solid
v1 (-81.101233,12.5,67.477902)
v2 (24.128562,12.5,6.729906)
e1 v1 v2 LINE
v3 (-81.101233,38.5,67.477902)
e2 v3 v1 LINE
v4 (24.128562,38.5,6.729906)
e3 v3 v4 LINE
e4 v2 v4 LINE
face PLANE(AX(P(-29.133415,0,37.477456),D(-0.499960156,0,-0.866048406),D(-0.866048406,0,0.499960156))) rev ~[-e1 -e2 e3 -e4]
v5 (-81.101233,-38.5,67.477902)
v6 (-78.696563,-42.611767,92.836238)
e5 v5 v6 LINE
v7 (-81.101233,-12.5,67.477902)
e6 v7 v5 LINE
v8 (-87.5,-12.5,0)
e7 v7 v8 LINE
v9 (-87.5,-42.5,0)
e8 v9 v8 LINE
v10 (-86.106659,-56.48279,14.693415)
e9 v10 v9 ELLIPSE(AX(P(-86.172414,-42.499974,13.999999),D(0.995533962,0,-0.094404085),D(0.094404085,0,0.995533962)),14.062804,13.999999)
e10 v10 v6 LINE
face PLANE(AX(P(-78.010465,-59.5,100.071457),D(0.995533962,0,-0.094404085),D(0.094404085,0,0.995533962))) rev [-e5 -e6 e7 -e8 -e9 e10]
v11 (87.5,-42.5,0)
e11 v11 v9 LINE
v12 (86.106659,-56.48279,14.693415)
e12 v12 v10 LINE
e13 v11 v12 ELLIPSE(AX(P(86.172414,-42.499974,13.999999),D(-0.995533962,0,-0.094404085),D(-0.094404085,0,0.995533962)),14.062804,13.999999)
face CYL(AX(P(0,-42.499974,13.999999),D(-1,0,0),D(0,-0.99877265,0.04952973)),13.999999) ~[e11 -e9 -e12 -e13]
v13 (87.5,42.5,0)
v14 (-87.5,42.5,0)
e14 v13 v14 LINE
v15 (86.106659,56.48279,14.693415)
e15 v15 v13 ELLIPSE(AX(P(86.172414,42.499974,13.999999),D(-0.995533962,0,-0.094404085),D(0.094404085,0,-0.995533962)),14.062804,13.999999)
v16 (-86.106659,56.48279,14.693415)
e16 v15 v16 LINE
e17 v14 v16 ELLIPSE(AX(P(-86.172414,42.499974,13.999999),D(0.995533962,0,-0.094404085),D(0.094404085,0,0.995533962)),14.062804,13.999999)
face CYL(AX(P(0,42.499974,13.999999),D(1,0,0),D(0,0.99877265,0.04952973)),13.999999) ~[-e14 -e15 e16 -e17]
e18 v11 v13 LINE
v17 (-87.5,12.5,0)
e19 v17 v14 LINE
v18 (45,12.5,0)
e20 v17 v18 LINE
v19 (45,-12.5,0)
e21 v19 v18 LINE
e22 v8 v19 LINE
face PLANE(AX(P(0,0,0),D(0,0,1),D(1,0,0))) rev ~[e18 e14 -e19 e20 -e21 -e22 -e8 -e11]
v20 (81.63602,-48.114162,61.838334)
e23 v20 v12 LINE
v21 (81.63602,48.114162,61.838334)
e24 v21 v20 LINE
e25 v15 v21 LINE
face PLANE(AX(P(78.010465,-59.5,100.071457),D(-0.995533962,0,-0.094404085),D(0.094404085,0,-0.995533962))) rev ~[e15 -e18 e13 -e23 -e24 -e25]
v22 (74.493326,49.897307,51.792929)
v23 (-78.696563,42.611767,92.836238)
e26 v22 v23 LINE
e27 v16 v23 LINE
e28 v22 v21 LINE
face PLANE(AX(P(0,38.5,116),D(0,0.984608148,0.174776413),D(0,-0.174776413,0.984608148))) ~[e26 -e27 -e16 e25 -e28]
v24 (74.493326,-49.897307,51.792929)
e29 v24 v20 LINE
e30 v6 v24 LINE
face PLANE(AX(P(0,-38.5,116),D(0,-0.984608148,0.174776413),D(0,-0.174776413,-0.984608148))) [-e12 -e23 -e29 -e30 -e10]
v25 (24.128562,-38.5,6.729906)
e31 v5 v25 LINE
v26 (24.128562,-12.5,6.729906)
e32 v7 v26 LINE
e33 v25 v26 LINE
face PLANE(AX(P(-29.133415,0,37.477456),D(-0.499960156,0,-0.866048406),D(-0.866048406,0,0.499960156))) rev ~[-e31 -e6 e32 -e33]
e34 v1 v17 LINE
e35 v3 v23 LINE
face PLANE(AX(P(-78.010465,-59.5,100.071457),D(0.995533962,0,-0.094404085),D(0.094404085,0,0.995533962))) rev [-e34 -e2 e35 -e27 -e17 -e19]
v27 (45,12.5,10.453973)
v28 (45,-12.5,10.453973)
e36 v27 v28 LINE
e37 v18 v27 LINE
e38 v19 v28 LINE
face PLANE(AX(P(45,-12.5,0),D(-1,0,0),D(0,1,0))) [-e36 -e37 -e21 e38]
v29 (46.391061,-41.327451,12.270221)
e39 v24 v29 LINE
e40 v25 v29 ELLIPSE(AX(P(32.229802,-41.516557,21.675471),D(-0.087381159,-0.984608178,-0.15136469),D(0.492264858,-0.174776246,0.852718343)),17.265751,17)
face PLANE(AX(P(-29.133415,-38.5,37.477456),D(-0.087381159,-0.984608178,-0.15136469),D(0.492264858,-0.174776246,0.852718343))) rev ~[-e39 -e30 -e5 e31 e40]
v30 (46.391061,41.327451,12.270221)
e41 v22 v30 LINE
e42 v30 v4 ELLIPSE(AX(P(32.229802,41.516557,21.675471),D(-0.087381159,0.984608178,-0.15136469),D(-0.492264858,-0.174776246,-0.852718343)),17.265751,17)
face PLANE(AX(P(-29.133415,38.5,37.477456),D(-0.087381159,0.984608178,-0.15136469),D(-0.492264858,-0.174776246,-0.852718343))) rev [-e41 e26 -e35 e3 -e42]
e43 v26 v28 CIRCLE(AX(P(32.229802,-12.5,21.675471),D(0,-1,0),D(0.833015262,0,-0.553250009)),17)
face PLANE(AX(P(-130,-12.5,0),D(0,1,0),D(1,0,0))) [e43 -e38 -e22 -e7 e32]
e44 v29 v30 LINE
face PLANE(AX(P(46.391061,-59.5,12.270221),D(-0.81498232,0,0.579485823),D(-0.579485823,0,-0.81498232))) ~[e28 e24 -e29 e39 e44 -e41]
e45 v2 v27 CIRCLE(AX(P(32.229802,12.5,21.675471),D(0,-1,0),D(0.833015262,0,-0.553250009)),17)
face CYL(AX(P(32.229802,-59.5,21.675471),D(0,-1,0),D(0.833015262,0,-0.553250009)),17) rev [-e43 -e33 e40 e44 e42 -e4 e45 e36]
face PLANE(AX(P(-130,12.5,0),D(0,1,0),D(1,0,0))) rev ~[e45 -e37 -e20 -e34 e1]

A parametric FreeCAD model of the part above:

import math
import FreeCAD as App
import Part
import Sketcher
from FreeCAD import Vector

doc = App.newDocument("Part")
body = doc.addObject("PartDesign::Body", "Body")

sketch1 = doc.addObject("Sketcher::SketchObject", "Sketch")
body.addObject(sketch1)
sketch1.AttachmentSupport = (doc.XY_Plane, [""])
sketch1.MapMode = "FlatFace"
sketch1.addGeometry([
    Part.LineSegment(Vector(-130, 12.5, 0), Vector(-130, -12.5, 0)),
    Part.LineSegment(Vector(-130, -12.5, 0), Vector(45, -12.5, 0)),
    Part.LineSegment(Vector(45, -12.5, 0), Vector(45, 12.5, 0)),
    Part.LineSegment(Vector(45, 12.5, 0), Vector(-130, 12.5, 0)),
], False)
sketch1.addConstraint([
    Sketcher.Constraint("Coincident", 0, 2, 1, 1),
    Sketcher.Constraint("Coincident", 1, 2, 2, 1),
    Sketcher.Constraint("Coincident", 2, 2, 3, 1),
    Sketcher.Constraint("Coincident", 3, 2, 0, 1),
    Sketcher.Constraint("Vertical", 0),
    Sketcher.Constraint("Horizontal", 1),
    Sketcher.Constraint("Vertical", 2),
    Sketcher.Constraint("Horizontal", 3),
    Sketcher.Constraint("DistanceX", 1, 1, 1, 2, 175.0),
    Sketcher.Constraint("DistanceY", 0, 2, 0, 1, 25.0),
    Sketcher.Constraint("DistanceX", 0, 2, -1, 1, 130.0),
    Sketcher.Constraint("DistanceY", 0, 2, -1, 1, 12.5),
])
pad1 = doc.addObject("PartDesign::Pad", "Pad")
body.addObject(pad1)
pad1.Profile = sketch1
pad1.Length = 120
body2 = doc.addObject("PartDesign::Body", "Body001")

sketch2 = doc.addObject("Sketcher::SketchObject", "Sketch001")
body2.addObject(sketch2)
sketch2.AttachmentSupport = (doc.getObject("XY_Plane001"), [""])
sketch2.MapMode = "FlatFace"
sketch2.addGeometry([
    Part.LineSegment(Vector(-87.5, 59.5, 0), Vector(-87.5, -59.5, 0)),
    Part.LineSegment(Vector(-87.5, -59.5, 0), Vector(87.5, -59.5, 0)),
    Part.LineSegment(Vector(87.5, -59.5, 0), Vector(87.5, 59.5, 0)),
    Part.LineSegment(Vector(87.5, 59.5, 0), Vector(-87.5, 59.5, 0)),
], False)
sketch2.addConstraint([
    Sketcher.Constraint("Coincident", 0, 2, 1, 1),
    Sketcher.Constraint("Coincident", 1, 2, 2, 1),
    Sketcher.Constraint("Coincident", 2, 2, 3, 1),
    Sketcher.Constraint("Coincident", 3, 2, 0, 1),
    Sketcher.Constraint("Vertical", 0),
    Sketcher.Constraint("Horizontal", 1),
    Sketcher.Constraint("Vertical", 2),
    Sketcher.Constraint("Horizontal", 3),
    Sketcher.Constraint("Symmetric", 0, 2, 2, 2, -1, 1),
    Sketcher.Constraint("DistanceX", 1, 1, 1, 2, 175.0),
    Sketcher.Constraint("DistanceY", 0, 2, 0, 1, 119.0),
])
pad2 = doc.addObject("PartDesign::Pad", "Pad001")
body2.addObject(pad2)
pad2.Profile = sketch2
pad2.Length = 116

sketch3 = doc.addObject("Sketcher::SketchObject", "Sketch002")
body2.addObject(sketch3)
sketch3.AttachmentSupport = (doc.getObject("XZ_Plane001"), [""])
sketch3.MapMode = "FlatFace"
sketch3.AttachmentOffset = App.Placement(Vector(0, 0, 59.5), App.Rotation())
sketch3.addGeometry([
    Part.ArcOfCircle(Part.Circle(Vector(61.043879, 99.006121, 0), Vector(0, 0, 1), 17), math.radians(3.5929), math.radians(88.462533)),
    Part.LineSegment(Vector(78.010465, 100.071457, 0), Vector(87.5, 0, 0)),
    Part.LineSegment(Vector(87.5, 0, 0), Vector(87.5, 116, 0)),
    Part.LineSegment(Vector(87.5, 116, 0), Vector(61.5, 116, 0)),
], False)
sketch3.addConstraint([
    Sketcher.Constraint("Coincident", 0, 1, 1, 1),
    Sketcher.Constraint("Coincident", 1, 2, 2, 1),
    Sketcher.Constraint("Coincident", 2, 2, 3, 1),
    Sketcher.Constraint("Coincident", 3, 2, 0, 2),
    Sketcher.Constraint("Vertical", 2),
    Sketcher.Constraint("Horizontal", 3),
    Sketcher.Constraint("PointOnObject", 1, 2, -1),
    Sketcher.Constraint("Radius", 0, 17.0),
    Sketcher.Constraint("DistanceX", 3, 2, 3, 1, 26.0),
    Sketcher.Constraint("DistanceY", 2, 1, 2, 2, 116.0),
    Sketcher.Constraint("DistanceX", -1, 1, 1, 2, 87.5),
    Sketcher.Constraint("DistanceX", -1, 1, 0, 3, 61.043879),
    Sketcher.Constraint("Distance", 1, 100.520385),
])
pocket1 = doc.addObject("PartDesign::Pocket", "Pocket")
body2.addObject(pocket1)
pocket1.Profile = sketch3
pocket1.Length = 119
doc.recompute()

mirrored = doc.addObject("PartDesign::Mirrored", "Mirrored")
body2.addObject(mirrored)
mirrored.Originals = [pocket1]
mirrored.MirrorPlane = (doc.getObject("YZ_Plane001"), [""])
body2.Tip = mirrored

sketch4 = doc.addObject("Sketcher::SketchObject", "Sketch003")
body2.addObject(sketch4)
sketch4.AttachmentSupport = (doc.getObject("YZ_Plane001"), [""])
sketch4.MapMode = "FlatFace"
sketch4.addGeometry([
    Part.LineSegment(Vector(-38.5, 116, 0), Vector(-59.5, 116, 0)),
    Part.LineSegment(Vector(-59.5, 116, 0), Vector(-59.5, 0, 0)),
    Part.LineSegment(Vector(-59.5, 0, 0), Vector(-42.5, 0, 0)),
    Part.ArcOfCircle(Part.Circle(Vector(-42.499956, 14, 0), Vector(0, 0, 1), 14), math.radians(177.161014), math.radians(269.99982)),
    Part.LineSegment(Vector(-56.482773, 14.693411, 0), Vector(-38.5, 116, 0)),
], False)
sketch4.addConstraint([
    Sketcher.Constraint("Coincident", 0, 2, 1, 1),
    Sketcher.Constraint("Coincident", 1, 2, 2, 1),
    Sketcher.Constraint("Coincident", 2, 2, 3, 2),
    Sketcher.Constraint("Coincident", 3, 1, 4, 1),
    Sketcher.Constraint("Coincident", 4, 2, 0, 1),
    Sketcher.Constraint("Horizontal", 0),
    Sketcher.Constraint("Vertical", 1),
    Sketcher.Constraint("Horizontal", 2),
    Sketcher.Constraint("PointOnObject", 1, 2, -1),
    Sketcher.Constraint("Radius", 3, 14.0),
    Sketcher.Constraint("DistanceX", 0, 2, 0, 1, 21.0),
    Sketcher.Constraint("DistanceX", 2, 1, 2, 2, 17.0),
    Sketcher.Constraint("DistanceY", 1, 2, 1, 1, 116.0),
    Sketcher.Constraint("DistanceX", 0, 2, -1, 1, 59.5),
    Sketcher.Constraint("DistanceY", -1, 1, 3, 1, 14.693411),
    Sketcher.Constraint("Distance", 4, 102.890258),
])
pocket2 = doc.addObject("PartDesign::Pocket", "Pocket001")
body2.addObject(pocket2)
pocket2.Profile = sketch4
pocket2.Type = "ThroughAll"
pocket2.Midplane = True
doc.recompute()

mirrored2 = doc.addObject("PartDesign::Mirrored", "Mirrored001")
body2.addObject(mirrored2)
mirrored2.Originals = [pocket2]
mirrored2.MirrorPlane = (doc.getObject("XZ_Plane001"), [""])
body2.Tip = mirrored2
body3 = doc.addObject("PartDesign::Body", "Body002")
doc.recompute()

body2.Placement = App.Placement(Vector(28.861963, 0, 137.939071), App.Rotation(Vector(0, -1, 0), 150.002636))
boolean = doc.addObject("PartDesign::Boolean", "Boolean")
body3.addObject(boolean)
boolean.Type = "Fuse"
boolean.addObjects([body2])
body4 = doc.addObject("PartDesign::Body", "Body003")

sketch5 = doc.addObject("Sketcher::SketchObject", "Sketch004")
body4.addObject(sketch5)
sketch5.AttachmentSupport = (doc.getObject("XY_Plane003"), [""])
sketch5.MapMode = "FlatFace"
sketch5.addGeometry([
    Part.LineSegment(Vector(-87.5, 59.5, 0), Vector(-87.5, -59.5, 0)),
    Part.LineSegment(Vector(-87.5, -59.5, 0), Vector(87.5, -59.5, 0)),
    Part.LineSegment(Vector(87.5, -59.5, 0), Vector(87.5, 59.5, 0)),
    Part.LineSegment(Vector(87.5, 59.5, 0), Vector(-87.5, 59.5, 0)),
], False)
sketch5.addConstraint([
    Sketcher.Constraint("Coincident", 0, 2, 1, 1),
    Sketcher.Constraint("Coincident", 1, 2, 2, 1),
    Sketcher.Constraint("Coincident", 2, 2, 3, 1),
    Sketcher.Constraint("Coincident", 3, 2, 0, 1),
    Sketcher.Constraint("Vertical", 0),
    Sketcher.Constraint("Horizontal", 1),
    Sketcher.Constraint("Vertical", 2),
    Sketcher.Constraint("Horizontal", 3),
    Sketcher.Constraint("Symmetric", 0, 2, 2, 2, -1, 1),
    Sketcher.Constraint("DistanceX", 1, 1, 1, 2, 175.0),
    Sketcher.Constraint("DistanceY", 0, 2, 0, 1, 119.0),
])
pad3 = doc.addObject("PartDesign::Pad", "Pad002")
body4.addObject(pad3)
pad3.Profile = sketch5
pad3.Length = 116

sketch6 = doc.addObject("Sketcher::SketchObject", "Sketch005")
body4.addObject(sketch6)
sketch6.AttachmentSupport = (doc.getObject("XZ_Plane003"), [""])
sketch6.MapMode = "FlatFace"
sketch6.AttachmentOffset = App.Placement(Vector(0, 0, 59.5), App.Rotation())
sketch6.addGeometry([
    Part.ArcOfCircle(Part.Circle(Vector(61.043879, 99.006121, 0), Vector(0, 0, 1), 17), math.radians(3.5929), math.radians(88.462533)),
    Part.LineSegment(Vector(78.010465, 100.071457, 0), Vector(87.5, 0, 0)),
    Part.LineSegment(Vector(87.5, 0, 0), Vector(87.5, 116, 0)),
    Part.LineSegment(Vector(87.5, 116, 0), Vector(61.5, 116, 0)),
], False)
sketch6.addConstraint([
    Sketcher.Constraint("Coincident", 0, 1, 1, 1),
    Sketcher.Constraint("Coincident", 1, 2, 2, 1),
    Sketcher.Constraint("Coincident", 2, 2, 3, 1),
    Sketcher.Constraint("Coincident", 3, 2, 0, 2),
    Sketcher.Constraint("Vertical", 2),
    Sketcher.Constraint("Horizontal", 3),
    Sketcher.Constraint("PointOnObject", 1, 2, -1),
    Sketcher.Constraint("Radius", 0, 17.0),
    Sketcher.Constraint("DistanceX", 3, 2, 3, 1, 26.0),
    Sketcher.Constraint("DistanceY", 2, 1, 2, 2, 116.0),
    Sketcher.Constraint("DistanceX", -1, 1, 1, 2, 87.5),
    Sketcher.Constraint("DistanceX", -1, 1, 0, 3, 61.043879),
    Sketcher.Constraint("Distance", 1, 100.520385),
])
pocket3 = doc.addObject("PartDesign::Pocket", "Pocket002")
body4.addObject(pocket3)
pocket3.Profile = sketch6
pocket3.Length = 119
doc.recompute()

mirrored3 = doc.addObject("PartDesign::Mirrored", "Mirrored002")
body4.addObject(mirrored3)
mirrored3.Originals = [pocket3]
mirrored3.MirrorPlane = (doc.getObject("YZ_Plane003"), [""])
body4.Tip = mirrored3

sketch7 = doc.addObject("Sketcher::SketchObject", "Sketch006")
body4.addObject(sketch7)
sketch7.AttachmentSupport = (doc.getObject("YZ_Plane003"), [""])
sketch7.MapMode = "FlatFace"
sketch7.addGeometry([
    Part.LineSegment(Vector(-38.5, 116, 0), Vector(-59.5, 116, 0)),
    Part.LineSegment(Vector(-59.5, 116, 0), Vector(-59.5, 0, 0)),
    Part.LineSegment(Vector(-59.5, 0, 0), Vector(-42.5, 0, 0)),
    Part.ArcOfCircle(Part.Circle(Vector(-42.499974, 13.999999, 0), Vector(0, 0, 1), 13.999999), math.radians(177.160994), math.radians(269.999894)),
    Part.LineSegment(Vector(-56.48279, 14.693415, 0), Vector(-38.5, 116, 0)),
], False)
sketch7.addConstraint([
    Sketcher.Constraint("Coincident", 0, 2, 1, 1),
    Sketcher.Constraint("Coincident", 1, 2, 2, 1),
    Sketcher.Constraint("Coincident", 2, 2, 3, 2),
    Sketcher.Constraint("Coincident", 3, 1, 4, 1),
    Sketcher.Constraint("Coincident", 4, 2, 0, 1),
    Sketcher.Constraint("Horizontal", 0),
    Sketcher.Constraint("Vertical", 1),
    Sketcher.Constraint("Horizontal", 2),
    Sketcher.Constraint("PointOnObject", 1, 2, -1),
    Sketcher.Constraint("Radius", 3, 13.999999),
    Sketcher.Constraint("DistanceX", 0, 2, 0, 1, 21.0),
    Sketcher.Constraint("DistanceX", 2, 1, 2, 2, 17.0),
    Sketcher.Constraint("DistanceY", 1, 2, 1, 1, 116.0),
    Sketcher.Constraint("DistanceX", 0, 2, -1, 1, 59.5),
    Sketcher.Constraint("DistanceX", 3, 1, -1, 1, 56.48279),
    Sketcher.Constraint("Distance", 4, 102.890257),
])
pocket4 = doc.addObject("PartDesign::Pocket", "Pocket003")
body4.addObject(pocket4)
pocket4.Profile = sketch7
pocket4.Type = "ThroughAll"
pocket4.Midplane = True
doc.recompute()

mirrored4 = doc.addObject("PartDesign::Mirrored", "Mirrored003")
body4.addObject(mirrored4)
mirrored4.Originals = [pocket4]
mirrored4.MirrorPlane = (doc.getObject("XZ_Plane003"), [""])
body4.Tip = mirrored4
doc.recompute()

boolean2 = doc.addObject("PartDesign::Boolean", "Boolean001")
body4.addObject(boolean2)
boolean2.Type = "Cut"
boolean2.addObjects([body3])
doc.recompute()

boolean3 = doc.addObject("PartDesign::Boolean", "Boolean002")
body4.addObject(boolean3)
boolean3.Type = "Cut"
boolean3.addObjects([body])

doc.recompute()
